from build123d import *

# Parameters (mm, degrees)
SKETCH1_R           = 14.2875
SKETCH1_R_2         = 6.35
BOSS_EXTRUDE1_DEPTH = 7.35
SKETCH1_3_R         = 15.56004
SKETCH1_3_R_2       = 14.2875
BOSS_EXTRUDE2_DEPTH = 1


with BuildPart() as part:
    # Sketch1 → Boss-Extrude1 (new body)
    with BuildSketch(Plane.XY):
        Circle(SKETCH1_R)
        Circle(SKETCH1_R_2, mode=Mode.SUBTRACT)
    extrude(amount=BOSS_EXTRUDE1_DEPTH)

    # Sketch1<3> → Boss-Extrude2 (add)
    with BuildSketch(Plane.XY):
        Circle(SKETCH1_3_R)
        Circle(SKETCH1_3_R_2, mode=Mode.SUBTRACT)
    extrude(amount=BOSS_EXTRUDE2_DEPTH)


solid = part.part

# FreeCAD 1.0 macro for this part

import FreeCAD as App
import Part
import Sketcher
from FreeCAD import Vector
Q = App.Units.Quantity

doc = App.newDocument("Part")
body = doc.addObject("PartDesign::Body", "Body")

sketch1 = body.newObject("Sketcher::SketchObject", "Sketch")
sketch1.AttachmentSupport = (doc.getObject("XY_Plane"), [""])
sketch1.MapMode = "FlatFace"
sketch1.addGeometry(Part.Circle(Vector(0, 0, 0), Vector(0, 0, 1), 14), False)
sketch1.addGeometry(Part.Circle(Vector(0, 0, 0), Vector(0, 0, 1), 6), False)
sketch1.addConstraint(Sketcher.Constraint("Coincident", 0, 3, -1, 1))
sketch1.addConstraint(Sketcher.Constraint("Coincident", 1, 3, -1, 1))
sketch1.addConstraint(Sketcher.Constraint("Diameter", 1, Q("0.5 in")))
sketch1.addConstraint(Sketcher.Constraint("Diameter", 0, Q("1.125 in")))
pad1 = body.newObject("PartDesign::Pad", "Pad")
pad1.Profile = sketch1
pad1.Length = 7.35

sketch2 = body.newObject("Sketcher::SketchObject", "Sketch001")
sketch2.AttachmentSupport = (doc.getObject("XY_Plane"), [""])
sketch2.MapMode = "FlatFace"
sketch2.addGeometry(Part.Circle(Vector(0, 0, 0), Vector(0, 0, 1), 16), False)
sketch2.addGeometry(Part.Circle(Vector(0, 0, 0), Vector(0, 0, 1), 14), False)
sketch2.addConstraint(Sketcher.Constraint("Coincident", 0, 3, -1, 1))
sketch2.addConstraint(Sketcher.Constraint("Coincident", 1, 3, -1, 1))
sketch2.addConstraint(Sketcher.Constraint("Diameter", 1, Q("1.125 in")))
sketch2.addConstraint(Sketcher.Constraint("Diameter", 0, Q("1.2252 in")))
pad2 = body.newObject("PartDesign::Pad", "Pad001")
pad2.Profile = sketch2
pad2.Length = 1

doc.recompute()
